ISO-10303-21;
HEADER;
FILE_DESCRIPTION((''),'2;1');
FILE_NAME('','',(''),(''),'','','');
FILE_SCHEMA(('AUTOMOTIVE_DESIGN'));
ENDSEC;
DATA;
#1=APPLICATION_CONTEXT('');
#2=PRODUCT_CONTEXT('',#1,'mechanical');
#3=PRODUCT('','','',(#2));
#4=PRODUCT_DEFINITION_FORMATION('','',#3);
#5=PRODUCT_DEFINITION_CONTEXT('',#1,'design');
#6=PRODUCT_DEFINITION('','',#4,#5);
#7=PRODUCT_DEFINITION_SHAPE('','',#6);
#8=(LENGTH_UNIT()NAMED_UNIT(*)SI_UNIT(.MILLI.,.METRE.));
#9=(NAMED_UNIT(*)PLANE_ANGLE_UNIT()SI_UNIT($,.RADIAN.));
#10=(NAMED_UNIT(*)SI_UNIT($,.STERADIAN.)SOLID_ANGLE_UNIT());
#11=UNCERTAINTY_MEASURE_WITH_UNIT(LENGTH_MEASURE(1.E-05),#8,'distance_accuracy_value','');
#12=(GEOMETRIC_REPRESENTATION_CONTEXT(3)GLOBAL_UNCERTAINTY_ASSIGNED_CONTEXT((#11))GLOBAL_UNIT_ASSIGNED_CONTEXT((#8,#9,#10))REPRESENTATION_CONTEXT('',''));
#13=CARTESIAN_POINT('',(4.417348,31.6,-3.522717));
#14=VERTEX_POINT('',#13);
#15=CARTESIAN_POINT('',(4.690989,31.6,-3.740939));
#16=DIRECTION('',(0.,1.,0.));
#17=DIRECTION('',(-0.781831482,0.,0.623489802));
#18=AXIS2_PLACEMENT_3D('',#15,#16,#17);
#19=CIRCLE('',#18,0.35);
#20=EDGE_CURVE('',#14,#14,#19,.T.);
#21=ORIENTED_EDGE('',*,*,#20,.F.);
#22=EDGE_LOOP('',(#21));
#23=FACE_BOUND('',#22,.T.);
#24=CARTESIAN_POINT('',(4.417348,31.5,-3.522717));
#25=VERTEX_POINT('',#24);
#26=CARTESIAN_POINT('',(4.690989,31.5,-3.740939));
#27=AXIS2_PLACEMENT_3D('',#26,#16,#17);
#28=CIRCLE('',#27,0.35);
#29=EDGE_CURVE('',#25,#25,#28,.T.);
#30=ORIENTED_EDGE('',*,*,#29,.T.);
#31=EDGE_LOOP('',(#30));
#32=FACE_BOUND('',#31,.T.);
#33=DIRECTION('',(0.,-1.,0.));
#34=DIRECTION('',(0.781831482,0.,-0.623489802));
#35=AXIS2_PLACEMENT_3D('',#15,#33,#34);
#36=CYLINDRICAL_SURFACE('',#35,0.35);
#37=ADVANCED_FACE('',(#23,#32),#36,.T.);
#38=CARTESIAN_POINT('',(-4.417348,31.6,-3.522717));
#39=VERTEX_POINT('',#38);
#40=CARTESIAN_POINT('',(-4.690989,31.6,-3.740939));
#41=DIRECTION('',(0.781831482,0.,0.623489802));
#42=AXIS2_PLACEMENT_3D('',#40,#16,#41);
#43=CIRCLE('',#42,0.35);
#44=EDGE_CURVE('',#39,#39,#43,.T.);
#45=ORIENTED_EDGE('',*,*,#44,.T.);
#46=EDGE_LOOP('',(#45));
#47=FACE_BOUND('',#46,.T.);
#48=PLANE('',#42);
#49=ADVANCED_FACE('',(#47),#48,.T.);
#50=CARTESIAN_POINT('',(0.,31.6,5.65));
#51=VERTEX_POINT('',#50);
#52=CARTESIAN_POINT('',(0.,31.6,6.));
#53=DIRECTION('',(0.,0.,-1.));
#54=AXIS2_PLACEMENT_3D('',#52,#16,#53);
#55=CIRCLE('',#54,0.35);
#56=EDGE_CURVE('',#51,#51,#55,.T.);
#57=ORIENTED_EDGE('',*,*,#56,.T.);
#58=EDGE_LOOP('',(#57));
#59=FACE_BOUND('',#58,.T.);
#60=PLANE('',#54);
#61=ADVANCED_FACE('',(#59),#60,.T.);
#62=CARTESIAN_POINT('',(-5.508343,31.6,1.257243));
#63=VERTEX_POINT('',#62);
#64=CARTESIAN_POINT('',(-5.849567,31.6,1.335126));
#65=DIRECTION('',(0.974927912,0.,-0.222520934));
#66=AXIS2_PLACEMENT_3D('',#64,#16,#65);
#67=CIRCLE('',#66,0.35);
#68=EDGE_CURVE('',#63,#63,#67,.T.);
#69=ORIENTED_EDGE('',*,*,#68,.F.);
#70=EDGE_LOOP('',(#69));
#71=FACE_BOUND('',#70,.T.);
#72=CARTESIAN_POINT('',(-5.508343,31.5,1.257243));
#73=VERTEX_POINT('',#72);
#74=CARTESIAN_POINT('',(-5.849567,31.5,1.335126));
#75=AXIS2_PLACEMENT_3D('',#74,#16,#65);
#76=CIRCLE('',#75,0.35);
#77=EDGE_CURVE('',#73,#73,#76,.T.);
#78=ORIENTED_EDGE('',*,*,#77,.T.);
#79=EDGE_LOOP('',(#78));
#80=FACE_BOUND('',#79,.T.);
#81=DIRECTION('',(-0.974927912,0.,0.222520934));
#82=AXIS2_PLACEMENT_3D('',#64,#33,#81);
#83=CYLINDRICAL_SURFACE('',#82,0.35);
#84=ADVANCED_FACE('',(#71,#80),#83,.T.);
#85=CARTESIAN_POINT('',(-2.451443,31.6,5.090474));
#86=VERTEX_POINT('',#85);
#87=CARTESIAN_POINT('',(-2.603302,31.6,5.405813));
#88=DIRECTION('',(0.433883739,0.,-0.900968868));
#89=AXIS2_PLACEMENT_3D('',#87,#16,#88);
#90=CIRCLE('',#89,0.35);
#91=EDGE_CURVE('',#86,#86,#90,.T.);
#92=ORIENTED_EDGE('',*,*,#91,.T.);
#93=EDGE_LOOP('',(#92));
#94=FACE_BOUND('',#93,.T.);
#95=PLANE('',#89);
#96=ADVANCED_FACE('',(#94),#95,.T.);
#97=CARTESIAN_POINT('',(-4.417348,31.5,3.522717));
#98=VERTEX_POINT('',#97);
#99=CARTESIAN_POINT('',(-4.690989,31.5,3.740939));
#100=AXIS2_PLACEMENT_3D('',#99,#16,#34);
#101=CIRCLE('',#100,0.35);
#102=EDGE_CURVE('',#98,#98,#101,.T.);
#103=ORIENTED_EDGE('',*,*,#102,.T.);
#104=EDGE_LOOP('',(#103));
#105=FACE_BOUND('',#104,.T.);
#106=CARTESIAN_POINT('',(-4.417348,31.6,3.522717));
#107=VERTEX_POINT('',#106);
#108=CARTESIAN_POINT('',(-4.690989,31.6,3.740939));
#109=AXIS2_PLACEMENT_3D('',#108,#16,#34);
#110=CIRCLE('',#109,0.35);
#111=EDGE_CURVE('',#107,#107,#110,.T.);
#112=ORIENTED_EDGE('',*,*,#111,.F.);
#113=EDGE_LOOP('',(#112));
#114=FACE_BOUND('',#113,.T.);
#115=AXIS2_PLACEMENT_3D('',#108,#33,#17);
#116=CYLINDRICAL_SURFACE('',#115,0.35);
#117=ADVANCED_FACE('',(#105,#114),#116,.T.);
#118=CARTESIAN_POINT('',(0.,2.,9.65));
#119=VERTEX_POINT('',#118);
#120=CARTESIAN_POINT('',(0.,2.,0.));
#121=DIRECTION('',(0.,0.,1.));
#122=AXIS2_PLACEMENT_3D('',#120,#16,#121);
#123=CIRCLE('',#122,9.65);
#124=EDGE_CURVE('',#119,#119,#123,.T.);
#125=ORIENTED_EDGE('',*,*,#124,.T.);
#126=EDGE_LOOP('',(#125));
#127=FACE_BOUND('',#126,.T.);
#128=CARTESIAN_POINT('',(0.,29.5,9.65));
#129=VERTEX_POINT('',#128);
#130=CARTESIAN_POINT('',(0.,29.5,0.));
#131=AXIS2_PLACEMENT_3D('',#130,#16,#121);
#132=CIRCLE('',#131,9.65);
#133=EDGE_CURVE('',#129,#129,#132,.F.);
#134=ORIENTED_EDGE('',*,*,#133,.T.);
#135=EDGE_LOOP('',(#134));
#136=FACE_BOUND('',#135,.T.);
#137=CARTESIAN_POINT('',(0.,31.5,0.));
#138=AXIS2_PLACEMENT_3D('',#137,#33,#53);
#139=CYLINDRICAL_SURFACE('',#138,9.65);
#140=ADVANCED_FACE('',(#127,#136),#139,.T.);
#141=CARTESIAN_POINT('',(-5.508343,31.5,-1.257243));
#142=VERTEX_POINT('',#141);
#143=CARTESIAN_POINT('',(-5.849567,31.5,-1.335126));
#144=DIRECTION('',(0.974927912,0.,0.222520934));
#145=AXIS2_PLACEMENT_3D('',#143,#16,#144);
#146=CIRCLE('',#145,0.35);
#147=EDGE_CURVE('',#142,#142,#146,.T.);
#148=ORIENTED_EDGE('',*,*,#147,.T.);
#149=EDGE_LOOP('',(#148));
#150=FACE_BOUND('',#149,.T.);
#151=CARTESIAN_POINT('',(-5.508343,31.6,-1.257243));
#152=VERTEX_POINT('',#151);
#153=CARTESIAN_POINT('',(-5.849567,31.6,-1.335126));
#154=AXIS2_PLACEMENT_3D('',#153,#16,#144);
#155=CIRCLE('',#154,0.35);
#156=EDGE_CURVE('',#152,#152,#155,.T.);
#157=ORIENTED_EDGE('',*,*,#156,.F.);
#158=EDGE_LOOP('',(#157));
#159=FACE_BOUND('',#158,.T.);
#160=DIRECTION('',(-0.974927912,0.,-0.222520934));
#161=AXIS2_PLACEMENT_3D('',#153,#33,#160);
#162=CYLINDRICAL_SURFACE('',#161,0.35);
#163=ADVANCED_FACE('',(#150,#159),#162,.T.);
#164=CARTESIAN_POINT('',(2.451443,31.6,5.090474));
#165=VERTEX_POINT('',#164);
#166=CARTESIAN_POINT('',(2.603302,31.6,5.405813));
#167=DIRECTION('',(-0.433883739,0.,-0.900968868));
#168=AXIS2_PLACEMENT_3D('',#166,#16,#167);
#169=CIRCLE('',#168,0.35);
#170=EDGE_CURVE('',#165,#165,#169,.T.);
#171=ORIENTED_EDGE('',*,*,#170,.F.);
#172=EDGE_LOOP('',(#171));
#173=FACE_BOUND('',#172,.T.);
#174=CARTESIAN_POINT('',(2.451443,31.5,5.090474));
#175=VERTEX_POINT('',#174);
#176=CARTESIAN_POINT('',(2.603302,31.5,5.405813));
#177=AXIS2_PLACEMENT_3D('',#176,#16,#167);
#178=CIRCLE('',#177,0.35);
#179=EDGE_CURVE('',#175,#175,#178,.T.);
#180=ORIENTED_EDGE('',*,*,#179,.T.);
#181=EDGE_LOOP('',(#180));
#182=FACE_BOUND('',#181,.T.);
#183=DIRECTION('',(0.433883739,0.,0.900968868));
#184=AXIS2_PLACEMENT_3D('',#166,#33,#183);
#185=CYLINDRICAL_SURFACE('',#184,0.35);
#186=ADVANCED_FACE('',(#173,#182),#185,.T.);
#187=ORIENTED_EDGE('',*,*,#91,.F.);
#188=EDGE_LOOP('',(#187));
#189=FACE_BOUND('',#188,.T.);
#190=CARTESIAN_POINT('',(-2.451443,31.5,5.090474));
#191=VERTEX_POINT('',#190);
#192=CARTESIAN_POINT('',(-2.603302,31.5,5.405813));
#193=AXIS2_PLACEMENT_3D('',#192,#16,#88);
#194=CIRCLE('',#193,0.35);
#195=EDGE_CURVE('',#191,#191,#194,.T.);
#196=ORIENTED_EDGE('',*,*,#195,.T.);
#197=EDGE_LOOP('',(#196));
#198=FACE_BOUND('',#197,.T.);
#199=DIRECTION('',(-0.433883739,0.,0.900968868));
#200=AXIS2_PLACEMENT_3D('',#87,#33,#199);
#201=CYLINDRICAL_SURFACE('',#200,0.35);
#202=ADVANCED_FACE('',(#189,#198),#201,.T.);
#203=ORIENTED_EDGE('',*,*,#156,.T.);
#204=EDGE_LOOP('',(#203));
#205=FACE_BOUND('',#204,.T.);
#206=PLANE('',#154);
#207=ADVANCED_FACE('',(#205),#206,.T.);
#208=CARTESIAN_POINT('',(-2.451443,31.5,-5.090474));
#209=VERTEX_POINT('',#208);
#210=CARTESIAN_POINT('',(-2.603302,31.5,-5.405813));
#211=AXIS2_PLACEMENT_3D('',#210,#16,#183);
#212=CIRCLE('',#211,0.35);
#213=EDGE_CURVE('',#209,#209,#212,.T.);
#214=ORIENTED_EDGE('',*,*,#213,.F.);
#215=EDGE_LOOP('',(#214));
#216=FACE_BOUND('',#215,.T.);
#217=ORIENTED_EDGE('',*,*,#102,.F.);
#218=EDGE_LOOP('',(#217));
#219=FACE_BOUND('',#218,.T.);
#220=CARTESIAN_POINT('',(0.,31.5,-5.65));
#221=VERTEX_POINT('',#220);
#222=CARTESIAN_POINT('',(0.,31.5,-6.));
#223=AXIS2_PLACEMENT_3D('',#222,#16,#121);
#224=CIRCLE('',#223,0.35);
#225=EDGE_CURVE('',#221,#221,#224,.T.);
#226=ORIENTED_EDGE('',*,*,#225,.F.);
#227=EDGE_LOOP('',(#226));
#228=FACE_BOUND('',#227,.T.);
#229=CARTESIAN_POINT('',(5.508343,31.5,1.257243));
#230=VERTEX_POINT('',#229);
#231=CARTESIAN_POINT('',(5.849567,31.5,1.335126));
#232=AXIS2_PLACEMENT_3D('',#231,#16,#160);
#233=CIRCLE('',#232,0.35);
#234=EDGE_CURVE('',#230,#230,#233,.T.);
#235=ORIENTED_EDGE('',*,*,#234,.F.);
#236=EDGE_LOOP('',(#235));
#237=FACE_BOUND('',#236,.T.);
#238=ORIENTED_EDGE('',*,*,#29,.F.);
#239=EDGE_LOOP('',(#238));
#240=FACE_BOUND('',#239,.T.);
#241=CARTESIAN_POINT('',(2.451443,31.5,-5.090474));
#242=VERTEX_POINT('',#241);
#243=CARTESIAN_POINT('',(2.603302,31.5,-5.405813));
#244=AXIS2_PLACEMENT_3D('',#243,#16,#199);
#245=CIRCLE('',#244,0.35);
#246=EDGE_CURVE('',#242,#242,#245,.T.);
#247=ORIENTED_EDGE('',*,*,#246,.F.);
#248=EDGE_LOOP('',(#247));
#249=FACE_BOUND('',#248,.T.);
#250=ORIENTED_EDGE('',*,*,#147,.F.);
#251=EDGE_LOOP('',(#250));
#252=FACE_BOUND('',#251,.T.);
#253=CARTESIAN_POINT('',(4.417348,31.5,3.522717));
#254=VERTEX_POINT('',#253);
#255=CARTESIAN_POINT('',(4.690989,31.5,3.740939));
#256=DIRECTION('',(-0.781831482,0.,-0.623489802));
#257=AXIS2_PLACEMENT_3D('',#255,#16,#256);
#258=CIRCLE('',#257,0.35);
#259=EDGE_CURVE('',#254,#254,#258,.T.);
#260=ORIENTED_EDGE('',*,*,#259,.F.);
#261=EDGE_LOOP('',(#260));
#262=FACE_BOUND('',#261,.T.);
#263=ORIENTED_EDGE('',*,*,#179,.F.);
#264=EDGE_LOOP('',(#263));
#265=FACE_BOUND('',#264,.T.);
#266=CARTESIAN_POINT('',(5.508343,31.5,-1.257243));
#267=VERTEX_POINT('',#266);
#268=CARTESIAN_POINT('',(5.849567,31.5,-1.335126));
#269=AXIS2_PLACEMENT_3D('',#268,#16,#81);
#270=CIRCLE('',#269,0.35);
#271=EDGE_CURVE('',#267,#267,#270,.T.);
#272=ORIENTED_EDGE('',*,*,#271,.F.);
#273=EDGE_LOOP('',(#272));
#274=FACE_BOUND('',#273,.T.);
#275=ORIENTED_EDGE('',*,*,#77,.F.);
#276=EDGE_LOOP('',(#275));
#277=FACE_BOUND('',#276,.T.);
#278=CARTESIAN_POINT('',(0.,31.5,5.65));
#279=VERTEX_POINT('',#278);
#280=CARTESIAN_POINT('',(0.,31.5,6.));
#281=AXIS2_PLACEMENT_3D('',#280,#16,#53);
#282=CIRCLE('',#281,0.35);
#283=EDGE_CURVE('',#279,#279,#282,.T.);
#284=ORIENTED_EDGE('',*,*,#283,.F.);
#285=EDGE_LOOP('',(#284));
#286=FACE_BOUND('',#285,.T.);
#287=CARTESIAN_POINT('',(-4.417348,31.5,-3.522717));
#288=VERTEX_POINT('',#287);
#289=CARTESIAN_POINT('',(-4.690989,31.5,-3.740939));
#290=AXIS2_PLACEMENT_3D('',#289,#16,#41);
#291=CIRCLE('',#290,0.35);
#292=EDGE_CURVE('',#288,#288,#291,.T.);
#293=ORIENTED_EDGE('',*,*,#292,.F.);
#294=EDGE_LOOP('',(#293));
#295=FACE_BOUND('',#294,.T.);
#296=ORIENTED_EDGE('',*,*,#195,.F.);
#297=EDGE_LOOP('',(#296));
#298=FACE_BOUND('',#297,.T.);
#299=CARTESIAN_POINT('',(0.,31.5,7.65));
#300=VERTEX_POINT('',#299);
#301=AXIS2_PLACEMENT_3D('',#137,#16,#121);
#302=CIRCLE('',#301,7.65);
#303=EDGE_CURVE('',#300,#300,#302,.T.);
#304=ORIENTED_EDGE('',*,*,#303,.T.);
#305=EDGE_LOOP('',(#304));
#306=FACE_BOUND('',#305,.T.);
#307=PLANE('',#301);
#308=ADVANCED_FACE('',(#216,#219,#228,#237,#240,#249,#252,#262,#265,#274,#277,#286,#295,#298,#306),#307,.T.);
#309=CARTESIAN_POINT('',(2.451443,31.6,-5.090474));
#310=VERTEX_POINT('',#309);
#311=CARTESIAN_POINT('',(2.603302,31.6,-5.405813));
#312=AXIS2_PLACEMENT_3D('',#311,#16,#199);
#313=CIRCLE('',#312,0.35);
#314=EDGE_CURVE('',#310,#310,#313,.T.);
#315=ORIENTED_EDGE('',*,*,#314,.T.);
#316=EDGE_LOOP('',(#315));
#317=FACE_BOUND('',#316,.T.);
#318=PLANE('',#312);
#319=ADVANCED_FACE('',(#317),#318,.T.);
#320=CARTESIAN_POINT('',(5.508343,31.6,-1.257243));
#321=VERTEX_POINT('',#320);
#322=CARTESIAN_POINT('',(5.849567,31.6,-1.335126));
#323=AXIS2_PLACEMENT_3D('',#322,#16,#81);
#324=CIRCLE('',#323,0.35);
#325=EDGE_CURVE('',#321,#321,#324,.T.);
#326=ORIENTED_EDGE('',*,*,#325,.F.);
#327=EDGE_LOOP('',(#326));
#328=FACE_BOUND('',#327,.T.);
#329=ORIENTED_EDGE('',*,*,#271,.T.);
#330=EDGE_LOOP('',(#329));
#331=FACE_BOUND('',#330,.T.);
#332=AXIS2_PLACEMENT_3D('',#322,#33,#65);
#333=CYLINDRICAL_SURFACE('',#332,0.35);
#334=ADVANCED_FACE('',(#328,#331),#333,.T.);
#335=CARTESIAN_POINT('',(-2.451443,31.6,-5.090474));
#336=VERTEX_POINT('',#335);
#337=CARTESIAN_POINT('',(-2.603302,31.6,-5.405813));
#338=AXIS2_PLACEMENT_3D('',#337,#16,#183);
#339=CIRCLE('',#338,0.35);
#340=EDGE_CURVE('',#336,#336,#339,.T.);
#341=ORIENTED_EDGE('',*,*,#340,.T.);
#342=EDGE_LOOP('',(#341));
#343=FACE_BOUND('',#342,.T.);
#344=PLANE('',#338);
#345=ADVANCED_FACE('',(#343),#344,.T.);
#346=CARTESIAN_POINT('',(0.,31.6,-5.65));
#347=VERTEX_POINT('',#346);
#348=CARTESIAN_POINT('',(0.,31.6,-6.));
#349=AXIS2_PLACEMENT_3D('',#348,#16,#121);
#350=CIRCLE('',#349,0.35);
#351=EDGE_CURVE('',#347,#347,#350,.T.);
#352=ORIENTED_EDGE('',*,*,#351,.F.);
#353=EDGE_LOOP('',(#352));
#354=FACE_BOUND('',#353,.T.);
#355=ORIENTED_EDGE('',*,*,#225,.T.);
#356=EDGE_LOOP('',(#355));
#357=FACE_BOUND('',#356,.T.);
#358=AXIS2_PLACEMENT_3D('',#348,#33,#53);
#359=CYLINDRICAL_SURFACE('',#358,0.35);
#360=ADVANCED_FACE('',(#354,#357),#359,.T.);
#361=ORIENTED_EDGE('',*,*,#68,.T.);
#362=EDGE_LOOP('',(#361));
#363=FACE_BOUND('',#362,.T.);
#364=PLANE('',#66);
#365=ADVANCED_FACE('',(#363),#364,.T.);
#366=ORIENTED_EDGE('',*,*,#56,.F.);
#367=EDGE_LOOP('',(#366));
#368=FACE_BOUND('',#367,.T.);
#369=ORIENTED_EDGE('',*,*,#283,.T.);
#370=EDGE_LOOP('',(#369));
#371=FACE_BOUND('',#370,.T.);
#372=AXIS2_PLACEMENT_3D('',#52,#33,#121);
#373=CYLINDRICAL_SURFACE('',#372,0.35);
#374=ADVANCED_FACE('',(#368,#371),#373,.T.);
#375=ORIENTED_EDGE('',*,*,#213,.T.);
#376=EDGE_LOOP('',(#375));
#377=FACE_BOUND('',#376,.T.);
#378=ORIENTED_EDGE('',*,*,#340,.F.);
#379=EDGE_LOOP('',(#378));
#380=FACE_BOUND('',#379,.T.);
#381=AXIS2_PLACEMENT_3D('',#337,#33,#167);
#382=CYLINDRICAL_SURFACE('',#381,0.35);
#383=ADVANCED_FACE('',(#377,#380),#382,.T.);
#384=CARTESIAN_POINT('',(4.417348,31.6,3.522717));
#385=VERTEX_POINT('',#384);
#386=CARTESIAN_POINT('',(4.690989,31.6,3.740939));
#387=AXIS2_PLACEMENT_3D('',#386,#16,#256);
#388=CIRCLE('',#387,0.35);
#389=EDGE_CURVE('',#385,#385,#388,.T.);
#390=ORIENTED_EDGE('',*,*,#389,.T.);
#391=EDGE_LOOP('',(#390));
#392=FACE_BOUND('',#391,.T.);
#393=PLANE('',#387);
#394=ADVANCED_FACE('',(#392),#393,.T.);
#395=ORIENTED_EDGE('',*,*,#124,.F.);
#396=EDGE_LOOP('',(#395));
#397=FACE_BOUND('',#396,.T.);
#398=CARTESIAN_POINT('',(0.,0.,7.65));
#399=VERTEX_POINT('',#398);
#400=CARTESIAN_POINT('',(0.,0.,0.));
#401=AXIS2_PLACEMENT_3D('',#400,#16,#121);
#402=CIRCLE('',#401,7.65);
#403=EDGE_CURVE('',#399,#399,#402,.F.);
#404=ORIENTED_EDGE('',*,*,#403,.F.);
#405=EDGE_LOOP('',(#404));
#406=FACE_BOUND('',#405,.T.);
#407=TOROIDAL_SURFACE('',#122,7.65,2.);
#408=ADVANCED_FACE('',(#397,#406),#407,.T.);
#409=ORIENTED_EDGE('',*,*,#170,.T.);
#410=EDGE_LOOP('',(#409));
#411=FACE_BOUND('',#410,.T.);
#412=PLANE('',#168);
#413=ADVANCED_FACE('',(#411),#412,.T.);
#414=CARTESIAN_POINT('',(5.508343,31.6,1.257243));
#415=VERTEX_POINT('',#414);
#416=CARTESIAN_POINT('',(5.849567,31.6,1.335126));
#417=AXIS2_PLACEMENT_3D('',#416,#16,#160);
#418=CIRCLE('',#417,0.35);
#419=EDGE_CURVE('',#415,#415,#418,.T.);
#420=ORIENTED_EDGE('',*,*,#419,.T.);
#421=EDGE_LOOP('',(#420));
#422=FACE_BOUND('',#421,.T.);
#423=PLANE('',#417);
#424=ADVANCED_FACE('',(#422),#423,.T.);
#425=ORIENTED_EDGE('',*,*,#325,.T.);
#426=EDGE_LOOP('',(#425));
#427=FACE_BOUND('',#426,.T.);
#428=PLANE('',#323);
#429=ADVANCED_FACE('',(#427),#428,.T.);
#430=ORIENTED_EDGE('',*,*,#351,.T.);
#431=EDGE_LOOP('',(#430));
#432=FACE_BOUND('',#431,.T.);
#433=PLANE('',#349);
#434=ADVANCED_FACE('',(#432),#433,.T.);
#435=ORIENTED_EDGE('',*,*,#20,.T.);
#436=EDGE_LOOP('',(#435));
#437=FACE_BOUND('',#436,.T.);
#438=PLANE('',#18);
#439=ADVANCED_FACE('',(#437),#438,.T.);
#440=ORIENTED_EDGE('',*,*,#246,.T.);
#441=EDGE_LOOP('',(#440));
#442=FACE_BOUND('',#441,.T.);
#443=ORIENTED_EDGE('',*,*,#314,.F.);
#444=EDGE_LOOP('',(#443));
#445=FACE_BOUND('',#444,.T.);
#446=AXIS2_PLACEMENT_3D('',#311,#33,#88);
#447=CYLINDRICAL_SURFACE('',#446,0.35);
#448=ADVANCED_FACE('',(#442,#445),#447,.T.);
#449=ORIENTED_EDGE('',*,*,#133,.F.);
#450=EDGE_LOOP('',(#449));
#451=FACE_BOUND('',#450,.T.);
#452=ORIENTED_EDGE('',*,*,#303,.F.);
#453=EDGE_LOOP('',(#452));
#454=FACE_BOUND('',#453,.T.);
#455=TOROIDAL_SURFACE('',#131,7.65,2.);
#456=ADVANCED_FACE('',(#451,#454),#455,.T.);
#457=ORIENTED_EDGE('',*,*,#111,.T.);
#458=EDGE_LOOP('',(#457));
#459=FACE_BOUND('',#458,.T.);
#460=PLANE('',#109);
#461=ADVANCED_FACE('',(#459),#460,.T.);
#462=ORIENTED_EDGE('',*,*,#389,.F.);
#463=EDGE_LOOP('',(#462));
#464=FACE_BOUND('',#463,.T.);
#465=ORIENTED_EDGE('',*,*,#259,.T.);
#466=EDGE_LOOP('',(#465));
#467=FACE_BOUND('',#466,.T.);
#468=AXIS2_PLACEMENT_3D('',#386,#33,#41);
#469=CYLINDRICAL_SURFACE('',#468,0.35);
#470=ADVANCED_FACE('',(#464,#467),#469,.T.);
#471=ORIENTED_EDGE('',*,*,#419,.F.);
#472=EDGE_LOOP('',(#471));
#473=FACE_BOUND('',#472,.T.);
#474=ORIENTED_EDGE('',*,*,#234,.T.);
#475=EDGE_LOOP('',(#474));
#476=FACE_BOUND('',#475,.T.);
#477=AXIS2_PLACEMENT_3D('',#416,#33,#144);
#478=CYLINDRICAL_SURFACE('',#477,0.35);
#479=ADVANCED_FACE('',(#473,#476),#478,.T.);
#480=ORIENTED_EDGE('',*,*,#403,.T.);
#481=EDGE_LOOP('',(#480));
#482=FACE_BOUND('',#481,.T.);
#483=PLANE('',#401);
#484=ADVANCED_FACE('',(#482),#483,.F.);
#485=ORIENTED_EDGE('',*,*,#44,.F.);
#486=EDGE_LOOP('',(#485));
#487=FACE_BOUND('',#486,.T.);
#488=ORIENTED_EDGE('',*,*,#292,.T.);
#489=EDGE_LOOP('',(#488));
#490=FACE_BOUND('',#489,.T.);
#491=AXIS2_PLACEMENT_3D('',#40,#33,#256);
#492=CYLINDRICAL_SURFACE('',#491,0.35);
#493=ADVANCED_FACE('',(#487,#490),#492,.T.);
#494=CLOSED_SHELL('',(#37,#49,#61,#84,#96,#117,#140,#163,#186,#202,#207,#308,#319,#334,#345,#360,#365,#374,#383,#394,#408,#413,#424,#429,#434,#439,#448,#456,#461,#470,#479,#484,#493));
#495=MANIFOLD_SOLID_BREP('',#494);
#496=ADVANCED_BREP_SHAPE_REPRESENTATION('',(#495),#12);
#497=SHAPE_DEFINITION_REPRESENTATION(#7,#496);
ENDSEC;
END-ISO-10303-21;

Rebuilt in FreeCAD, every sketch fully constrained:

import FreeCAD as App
import Part
import Sketcher


def edges_at(feature, points):
    """Names of the edges that pass closest to the given points."""
    edges = feature.Shape.Edges
    near = lambda p: min(range(len(edges)), key=lambda i: edges[i].distToShape(Part.Vertex(*p))[0])
    return sorted({f"Edge{near(p) + 1}" for p in points})

doc = App.newDocument("Part")
body = doc.addObject("PartDesign::Body", "Body")

sketch1 = doc.addObject("Sketcher::SketchObject", "Sketch")
body.addObject(sketch1)
sketch1.AttachmentSupport = (doc.XZ_Plane, [""])
sketch1.MapMode = "FlatFace"
sketch1.addGeometry(Part.Circle(App.Vector(0, 0, 0), App.Vector(0, 0, 1), 9.65), False)
sketch1.addConstraint([
    Sketcher.Constraint("Coincident", 0, 3, -1, 1),
    Sketcher.Constraint("Diameter", 0, 19.3),
])
pad1 = doc.addObject("PartDesign::Pad", "Pad")
body.addObject(pad1)
pad1.Profile = sketch1
pad1.Length = 31.5
pad1.Reversed = True
doc.recompute()

fillet = doc.addObject("PartDesign::Fillet", "Fillet")
body.addObject(fillet)
fillet.Base = (pad1, edges_at(pad1, [(0, 0, -9.65), (0, 31.5, -9.65)]))
fillet.Radius = 2

sketch2 = doc.addObject("Sketcher::SketchObject", "Sketch001")
body.addObject(sketch2)
sketch2.AttachmentSupport = (doc.XZ_Plane, [""])
sketch2.MapMode = "FlatFace"
sketch2.AttachmentOffset = App.Placement(App.Vector(0, 0, -31.5), App.Rotation())
sketch2.addGeometry(Part.Circle(App.Vector(0, -6, 0), App.Vector(0, 0, 1), 0.35), False)
sketch2.addConstraint([
    Sketcher.Constraint("PointOnObject", 0, 3, -2),
    Sketcher.Constraint("Diameter", 0, 0.7),
    Sketcher.Constraint("DistanceY", 0, 3, -1, 1, 6.0),
])
pad2 = doc.addObject("PartDesign::Pad", "Pad001")
body.addObject(pad2)
pad2.Profile = sketch2
pad2.Length = 0.1
pad2.Reversed = True
doc.recompute()

polarpattern = doc.addObject("PartDesign::PolarPattern", "PolarPattern")
body.addObject(polarpattern)
polarpattern.Originals = [pad2]
polarpattern.Axis = (doc.Y_Axis, [""])
polarpattern.Angle = 360
polarpattern.Occurrences = 14
body.Tip = polarpattern

doc.recompute()
